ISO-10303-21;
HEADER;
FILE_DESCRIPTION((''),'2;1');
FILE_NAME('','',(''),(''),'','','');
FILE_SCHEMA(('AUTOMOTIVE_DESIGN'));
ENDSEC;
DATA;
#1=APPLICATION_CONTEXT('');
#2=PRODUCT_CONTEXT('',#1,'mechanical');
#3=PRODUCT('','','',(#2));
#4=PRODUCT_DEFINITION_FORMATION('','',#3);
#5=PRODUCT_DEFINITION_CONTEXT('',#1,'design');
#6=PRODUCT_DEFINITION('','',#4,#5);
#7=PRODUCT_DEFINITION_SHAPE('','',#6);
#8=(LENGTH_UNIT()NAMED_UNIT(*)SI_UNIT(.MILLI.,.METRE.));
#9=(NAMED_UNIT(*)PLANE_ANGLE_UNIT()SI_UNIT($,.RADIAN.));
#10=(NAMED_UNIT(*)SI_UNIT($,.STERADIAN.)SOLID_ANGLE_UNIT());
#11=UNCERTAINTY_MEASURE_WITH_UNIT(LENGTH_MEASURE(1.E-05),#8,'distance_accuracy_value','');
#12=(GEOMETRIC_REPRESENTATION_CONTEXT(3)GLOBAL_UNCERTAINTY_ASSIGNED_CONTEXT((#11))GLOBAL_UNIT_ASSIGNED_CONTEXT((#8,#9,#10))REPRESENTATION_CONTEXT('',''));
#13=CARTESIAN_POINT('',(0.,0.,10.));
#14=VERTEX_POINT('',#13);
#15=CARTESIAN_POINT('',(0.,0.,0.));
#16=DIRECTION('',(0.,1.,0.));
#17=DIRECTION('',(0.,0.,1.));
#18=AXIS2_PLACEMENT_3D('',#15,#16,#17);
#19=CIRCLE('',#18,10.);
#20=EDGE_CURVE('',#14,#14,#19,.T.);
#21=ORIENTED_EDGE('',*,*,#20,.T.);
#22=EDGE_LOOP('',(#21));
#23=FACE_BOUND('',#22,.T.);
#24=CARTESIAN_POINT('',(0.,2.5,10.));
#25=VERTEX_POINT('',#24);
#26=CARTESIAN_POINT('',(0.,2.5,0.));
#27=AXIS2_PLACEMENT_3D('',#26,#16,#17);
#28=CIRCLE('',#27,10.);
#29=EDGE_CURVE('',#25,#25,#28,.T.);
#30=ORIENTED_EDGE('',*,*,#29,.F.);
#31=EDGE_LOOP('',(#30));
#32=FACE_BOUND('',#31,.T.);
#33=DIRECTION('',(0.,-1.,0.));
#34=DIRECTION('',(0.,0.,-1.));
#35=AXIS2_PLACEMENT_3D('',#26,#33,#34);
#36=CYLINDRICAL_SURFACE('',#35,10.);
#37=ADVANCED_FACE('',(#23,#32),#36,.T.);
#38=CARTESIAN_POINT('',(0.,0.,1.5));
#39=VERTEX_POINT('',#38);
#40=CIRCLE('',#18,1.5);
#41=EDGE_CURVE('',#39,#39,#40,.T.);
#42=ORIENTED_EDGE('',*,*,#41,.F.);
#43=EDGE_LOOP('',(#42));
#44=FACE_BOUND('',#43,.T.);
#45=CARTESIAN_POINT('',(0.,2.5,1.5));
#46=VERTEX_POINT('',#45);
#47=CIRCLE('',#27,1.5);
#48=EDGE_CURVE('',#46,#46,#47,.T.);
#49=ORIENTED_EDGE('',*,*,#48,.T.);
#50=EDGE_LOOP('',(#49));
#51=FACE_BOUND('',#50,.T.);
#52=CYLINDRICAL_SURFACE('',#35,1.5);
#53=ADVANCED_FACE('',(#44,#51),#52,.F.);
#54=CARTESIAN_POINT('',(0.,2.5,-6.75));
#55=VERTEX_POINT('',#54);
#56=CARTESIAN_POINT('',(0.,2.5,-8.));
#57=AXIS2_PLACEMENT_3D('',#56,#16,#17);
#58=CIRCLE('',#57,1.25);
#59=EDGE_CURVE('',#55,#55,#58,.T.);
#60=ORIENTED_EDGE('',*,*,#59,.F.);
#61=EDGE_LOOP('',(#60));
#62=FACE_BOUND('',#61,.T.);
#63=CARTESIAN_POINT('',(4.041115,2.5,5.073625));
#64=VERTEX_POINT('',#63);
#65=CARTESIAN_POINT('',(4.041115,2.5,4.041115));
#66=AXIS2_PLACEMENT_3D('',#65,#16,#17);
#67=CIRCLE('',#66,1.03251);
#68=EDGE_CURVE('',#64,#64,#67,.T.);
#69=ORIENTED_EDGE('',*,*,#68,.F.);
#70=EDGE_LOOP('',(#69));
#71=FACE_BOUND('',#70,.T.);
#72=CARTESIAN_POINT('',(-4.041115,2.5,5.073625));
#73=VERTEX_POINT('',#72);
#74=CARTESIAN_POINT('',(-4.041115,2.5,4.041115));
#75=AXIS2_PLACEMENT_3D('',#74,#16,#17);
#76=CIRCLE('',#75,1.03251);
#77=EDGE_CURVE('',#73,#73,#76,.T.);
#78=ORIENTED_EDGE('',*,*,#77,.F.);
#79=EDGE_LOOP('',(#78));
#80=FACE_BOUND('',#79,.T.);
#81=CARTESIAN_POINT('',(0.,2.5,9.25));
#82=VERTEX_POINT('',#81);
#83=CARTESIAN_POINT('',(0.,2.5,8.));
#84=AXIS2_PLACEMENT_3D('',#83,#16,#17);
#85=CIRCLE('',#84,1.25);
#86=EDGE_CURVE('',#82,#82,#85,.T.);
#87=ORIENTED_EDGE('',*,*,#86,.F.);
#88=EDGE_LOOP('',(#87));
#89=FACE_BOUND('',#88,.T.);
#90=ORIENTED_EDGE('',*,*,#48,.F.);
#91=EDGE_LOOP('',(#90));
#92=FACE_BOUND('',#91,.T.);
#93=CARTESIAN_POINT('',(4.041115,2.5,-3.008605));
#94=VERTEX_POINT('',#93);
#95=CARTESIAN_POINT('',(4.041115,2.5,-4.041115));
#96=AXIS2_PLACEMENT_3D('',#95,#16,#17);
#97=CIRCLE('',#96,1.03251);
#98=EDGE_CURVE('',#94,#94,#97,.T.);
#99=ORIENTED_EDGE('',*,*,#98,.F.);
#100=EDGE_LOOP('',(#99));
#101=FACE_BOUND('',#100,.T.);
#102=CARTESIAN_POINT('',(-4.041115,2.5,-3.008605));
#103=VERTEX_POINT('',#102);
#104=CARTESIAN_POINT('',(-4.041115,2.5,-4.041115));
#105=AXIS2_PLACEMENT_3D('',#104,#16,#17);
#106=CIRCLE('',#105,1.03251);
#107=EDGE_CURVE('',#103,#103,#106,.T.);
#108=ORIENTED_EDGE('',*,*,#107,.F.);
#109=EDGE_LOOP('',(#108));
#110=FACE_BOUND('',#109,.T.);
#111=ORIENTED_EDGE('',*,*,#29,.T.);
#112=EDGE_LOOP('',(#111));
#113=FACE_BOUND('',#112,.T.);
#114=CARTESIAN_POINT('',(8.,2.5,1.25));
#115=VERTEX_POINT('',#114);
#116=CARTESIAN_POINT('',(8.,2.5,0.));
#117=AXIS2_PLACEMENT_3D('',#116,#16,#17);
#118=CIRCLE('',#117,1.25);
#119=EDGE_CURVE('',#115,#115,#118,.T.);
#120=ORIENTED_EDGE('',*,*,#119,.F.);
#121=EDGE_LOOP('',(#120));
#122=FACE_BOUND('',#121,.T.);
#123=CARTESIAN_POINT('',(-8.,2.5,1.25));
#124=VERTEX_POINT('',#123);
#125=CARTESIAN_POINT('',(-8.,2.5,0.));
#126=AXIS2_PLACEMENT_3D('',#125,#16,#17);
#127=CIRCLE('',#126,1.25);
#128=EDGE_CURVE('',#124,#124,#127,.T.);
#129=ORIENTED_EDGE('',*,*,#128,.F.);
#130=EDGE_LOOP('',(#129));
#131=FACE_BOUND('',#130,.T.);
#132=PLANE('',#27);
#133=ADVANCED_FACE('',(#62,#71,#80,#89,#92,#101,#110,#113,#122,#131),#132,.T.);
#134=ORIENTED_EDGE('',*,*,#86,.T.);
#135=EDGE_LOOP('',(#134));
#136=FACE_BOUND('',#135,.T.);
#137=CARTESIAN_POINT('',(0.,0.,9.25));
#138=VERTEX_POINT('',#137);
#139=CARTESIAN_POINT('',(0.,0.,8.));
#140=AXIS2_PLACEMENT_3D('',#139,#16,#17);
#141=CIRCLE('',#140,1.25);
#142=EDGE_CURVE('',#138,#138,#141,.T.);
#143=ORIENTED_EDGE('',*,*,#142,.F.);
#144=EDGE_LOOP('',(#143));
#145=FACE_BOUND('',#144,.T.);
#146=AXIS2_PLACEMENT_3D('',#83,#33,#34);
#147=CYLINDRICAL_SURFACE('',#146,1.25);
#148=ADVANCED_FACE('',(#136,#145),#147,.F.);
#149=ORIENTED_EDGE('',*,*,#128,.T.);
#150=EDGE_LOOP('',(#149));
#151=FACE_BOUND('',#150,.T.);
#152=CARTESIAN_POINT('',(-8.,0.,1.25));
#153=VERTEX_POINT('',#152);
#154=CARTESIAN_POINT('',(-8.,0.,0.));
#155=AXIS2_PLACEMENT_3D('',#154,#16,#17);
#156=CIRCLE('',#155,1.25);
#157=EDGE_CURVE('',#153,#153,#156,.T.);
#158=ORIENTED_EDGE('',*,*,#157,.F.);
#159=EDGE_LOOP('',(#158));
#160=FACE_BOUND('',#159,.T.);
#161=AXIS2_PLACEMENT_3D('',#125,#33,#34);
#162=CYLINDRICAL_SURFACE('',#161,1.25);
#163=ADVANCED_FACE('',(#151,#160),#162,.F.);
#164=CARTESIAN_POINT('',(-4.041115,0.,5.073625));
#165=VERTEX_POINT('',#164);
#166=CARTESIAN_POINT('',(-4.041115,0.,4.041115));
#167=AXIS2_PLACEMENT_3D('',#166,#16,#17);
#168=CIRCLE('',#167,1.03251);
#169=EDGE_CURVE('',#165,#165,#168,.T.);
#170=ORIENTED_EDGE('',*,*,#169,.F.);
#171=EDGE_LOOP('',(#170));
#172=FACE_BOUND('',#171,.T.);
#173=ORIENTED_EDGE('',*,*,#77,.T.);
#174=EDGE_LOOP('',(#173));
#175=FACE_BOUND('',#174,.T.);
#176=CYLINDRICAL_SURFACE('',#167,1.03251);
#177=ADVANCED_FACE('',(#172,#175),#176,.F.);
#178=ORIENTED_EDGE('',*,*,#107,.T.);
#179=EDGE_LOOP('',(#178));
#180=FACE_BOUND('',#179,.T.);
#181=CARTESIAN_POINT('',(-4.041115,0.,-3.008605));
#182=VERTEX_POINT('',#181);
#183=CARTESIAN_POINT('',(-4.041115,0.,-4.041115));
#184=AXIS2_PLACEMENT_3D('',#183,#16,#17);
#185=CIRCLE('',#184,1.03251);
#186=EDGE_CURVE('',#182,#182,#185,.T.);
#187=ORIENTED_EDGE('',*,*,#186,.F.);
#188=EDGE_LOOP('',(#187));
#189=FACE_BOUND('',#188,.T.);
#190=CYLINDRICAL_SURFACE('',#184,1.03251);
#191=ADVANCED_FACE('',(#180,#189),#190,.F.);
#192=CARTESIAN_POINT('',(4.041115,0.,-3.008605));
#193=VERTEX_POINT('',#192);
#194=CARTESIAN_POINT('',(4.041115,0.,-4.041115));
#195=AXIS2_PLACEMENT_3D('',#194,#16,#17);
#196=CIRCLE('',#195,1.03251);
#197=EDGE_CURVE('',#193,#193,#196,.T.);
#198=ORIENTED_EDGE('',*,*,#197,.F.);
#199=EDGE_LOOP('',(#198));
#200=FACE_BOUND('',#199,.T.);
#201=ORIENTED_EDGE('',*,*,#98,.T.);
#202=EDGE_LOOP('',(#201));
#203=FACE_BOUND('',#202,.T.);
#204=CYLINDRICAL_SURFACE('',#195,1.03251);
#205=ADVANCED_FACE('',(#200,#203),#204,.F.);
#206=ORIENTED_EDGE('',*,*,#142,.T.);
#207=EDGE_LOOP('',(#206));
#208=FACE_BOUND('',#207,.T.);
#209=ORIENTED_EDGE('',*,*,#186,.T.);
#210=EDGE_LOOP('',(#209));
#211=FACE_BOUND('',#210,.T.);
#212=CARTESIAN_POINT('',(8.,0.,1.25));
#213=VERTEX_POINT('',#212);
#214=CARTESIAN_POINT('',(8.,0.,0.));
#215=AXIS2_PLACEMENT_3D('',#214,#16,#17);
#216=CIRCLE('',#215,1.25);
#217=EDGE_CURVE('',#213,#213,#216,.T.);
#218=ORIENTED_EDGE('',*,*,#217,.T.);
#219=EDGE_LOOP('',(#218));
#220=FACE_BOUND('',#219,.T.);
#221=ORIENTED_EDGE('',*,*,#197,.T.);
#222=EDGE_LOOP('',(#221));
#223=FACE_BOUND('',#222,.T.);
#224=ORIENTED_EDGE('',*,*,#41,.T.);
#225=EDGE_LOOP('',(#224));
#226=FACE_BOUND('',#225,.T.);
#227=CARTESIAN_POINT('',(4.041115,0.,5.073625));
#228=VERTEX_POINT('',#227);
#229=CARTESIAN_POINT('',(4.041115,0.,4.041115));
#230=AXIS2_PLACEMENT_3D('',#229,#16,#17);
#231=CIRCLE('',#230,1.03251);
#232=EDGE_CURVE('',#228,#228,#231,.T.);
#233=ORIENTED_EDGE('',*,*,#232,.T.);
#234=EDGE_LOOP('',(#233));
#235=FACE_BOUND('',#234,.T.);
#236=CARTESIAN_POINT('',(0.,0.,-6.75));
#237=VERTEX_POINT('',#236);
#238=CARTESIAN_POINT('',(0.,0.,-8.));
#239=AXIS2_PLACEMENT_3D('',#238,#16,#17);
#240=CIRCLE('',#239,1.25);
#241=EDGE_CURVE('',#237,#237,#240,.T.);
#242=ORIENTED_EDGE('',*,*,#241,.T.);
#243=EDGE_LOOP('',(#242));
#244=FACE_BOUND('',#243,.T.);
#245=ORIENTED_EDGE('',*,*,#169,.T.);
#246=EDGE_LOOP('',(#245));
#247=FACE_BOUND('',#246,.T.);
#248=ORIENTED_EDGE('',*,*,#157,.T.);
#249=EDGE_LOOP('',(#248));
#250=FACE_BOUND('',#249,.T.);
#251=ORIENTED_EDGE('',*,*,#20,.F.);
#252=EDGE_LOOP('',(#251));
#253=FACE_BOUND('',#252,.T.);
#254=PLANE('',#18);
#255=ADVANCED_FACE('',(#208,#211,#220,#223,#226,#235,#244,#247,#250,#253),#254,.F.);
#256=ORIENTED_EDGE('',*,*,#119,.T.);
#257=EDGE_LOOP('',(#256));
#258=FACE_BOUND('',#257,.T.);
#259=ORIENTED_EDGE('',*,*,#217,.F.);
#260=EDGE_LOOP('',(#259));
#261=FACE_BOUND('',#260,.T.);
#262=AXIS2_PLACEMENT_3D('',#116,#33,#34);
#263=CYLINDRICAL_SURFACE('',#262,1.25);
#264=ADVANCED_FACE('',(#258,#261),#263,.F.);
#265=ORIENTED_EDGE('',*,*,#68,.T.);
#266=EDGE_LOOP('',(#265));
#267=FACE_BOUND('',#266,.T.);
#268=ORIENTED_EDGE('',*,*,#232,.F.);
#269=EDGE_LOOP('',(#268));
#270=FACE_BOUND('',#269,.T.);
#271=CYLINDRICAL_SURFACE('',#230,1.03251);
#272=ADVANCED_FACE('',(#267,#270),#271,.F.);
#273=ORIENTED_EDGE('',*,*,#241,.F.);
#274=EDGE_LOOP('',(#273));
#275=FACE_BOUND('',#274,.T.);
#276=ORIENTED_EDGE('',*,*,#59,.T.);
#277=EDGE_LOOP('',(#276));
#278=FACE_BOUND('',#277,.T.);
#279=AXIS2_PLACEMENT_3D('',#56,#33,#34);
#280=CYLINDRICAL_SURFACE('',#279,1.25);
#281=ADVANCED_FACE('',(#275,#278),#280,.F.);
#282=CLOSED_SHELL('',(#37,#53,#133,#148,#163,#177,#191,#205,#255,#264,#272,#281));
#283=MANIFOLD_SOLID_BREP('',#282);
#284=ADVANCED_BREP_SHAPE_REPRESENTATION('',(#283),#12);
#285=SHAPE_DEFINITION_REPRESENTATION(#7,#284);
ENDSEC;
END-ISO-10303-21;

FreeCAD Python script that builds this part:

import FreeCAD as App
import Part
import Sketcher
from FreeCAD import Vector

doc = App.newDocument("Part")
params = doc.addObject("Spreadsheet::Sheet", "Params")
for row, (alias, value) in enumerate([
    ("sketch1_diameter", "20 mm"),
    ("sketch1_diameter2", "3 mm"),
    ("sketch1_diameter3", "2.5 mm"),
    ("pad1_length", "2.5 mm"),
], start=1):
    params.set(f"A{row}", alias)
    params.set(f"B{row}", "=" + value)
    params.setAlias(f"B{row}", alias)

body = doc.addObject("PartDesign::Body", "Body")

sketch1 = body.newObject("Sketcher::SketchObject", "Sketch")
sketch1.AttachmentSupport = (doc.getObject("XZ_Plane"), [""])
sketch1.MapMode = "FlatFace"
sketch1.addGeometry([
    Part.Circle(Vector(0, 0, 0), Vector(0, 0, 1), 10),
    Part.Circle(Vector(0, -8, 0), Vector(0, 0, 1), 1.2),
    Part.Circle(Vector(-8, 0, 0), Vector(0, 0, 1), 1.2),
    Part.Circle(Vector(8, 0, 0), Vector(0, 0, 1), 1.2),
    Part.Circle(Vector(0, 0, 0), Vector(0, 0, 1), 1.5),
    Part.Circle(Vector(0, 8, 0), Vector(0, 0, 1), 1.2),
], False)
sketch1.addConstraint([
    Sketcher.Constraint("Coincident", 0, 3, -1, 1),
    Sketcher.Constraint("Coincident", 4, 3, -1, 1),
    Sketcher.Constraint("Equal", 1, 2),
    Sketcher.Constraint("Equal", 2, 3),
    Sketcher.Constraint("Equal", 3, 5),
    Sketcher.Constraint("Symmetric", 2, 3, 3, 3, -1, 1),
    Sketcher.Constraint("Symmetric", 1, 3, 5, 3, -1, 1),
    Sketcher.Constraint("PointOnObject", 1, 3, -2),
    Sketcher.Constraint("PointOnObject", 2, 3, -1),
    Sketcher.Constraint("Diameter", 0, 20.0),
    Sketcher.Constraint("Diameter", 4, 3.0),
    Sketcher.Constraint("Diameter", 1, 2.5),
    Sketcher.Constraint("DistanceY", 1, 3, -1, 1, 8.0),
    Sketcher.Constraint("DistanceX", 2, 3, -1, 1, 8.0),
])
sketch1.setExpression("Constraints[9]", "Params.sketch1_diameter")
sketch1.setExpression("Constraints[10]", "Params.sketch1_diameter2")
sketch1.setExpression("Constraints[11]", "Params.sketch1_diameter3")
pad1 = body.newObject("PartDesign::Pad", "Pad")
pad1.Profile = sketch1
pad1.setExpression("Length", "Params.pad1_length")
pad1.Reversed = True

sketch2 = body.newObject("Sketcher::SketchObject", "Sketch001")
sketch2.AttachmentSupport = (doc.getObject("XZ_Plane"), [""])
sketch2.MapMode = "FlatFace"
sketch2.AttachmentOffset = App.Placement(Vector(0, 0, -2.5), App.Rotation())
sketch2.addGeometry([
    Part.Circle(Vector(-4, -4, 0), Vector(0, 0, 1), 1),
    Part.Circle(Vector(4, -4, 0), Vector(0, 0, 1), 1),
    Part.Circle(Vector(4, 4, 0), Vector(0, 0, 1), 1),
    Part.Circle(Vector(-4, 4, 0), Vector(0, 0, 1), 1),
], False)
sketch2.addConstraint([
    Sketcher.Constraint("Equal", 0, 1),
    Sketcher.Constraint("Equal", 1, 2),
    Sketcher.Constraint("Equal", 2, 3),
    Sketcher.Constraint("Symmetric", 0, 3, 2, 3, -1, 1),
    Sketcher.Constraint("Symmetric", 1, 3, 3, 3, -1, 1),
    Sketcher.Constraint("Symmetric", 0, 3, 1, 3, -2),
    Sketcher.Constraint("Diameter", 0, 2.06502),
    Sketcher.Constraint("DistanceX", 0, 3, 1, 3, 8.082231),
    Sketcher.Constraint("DistanceY", 1, 3, 2, 3, 8.082231),
])
pocket1 = body.newObject("PartDesign::Pocket", "Pocket")
pocket1.Profile = sketch2
pocket1.Type = "ThroughAll"
pocket1.Reversed = True

doc.recompute()
